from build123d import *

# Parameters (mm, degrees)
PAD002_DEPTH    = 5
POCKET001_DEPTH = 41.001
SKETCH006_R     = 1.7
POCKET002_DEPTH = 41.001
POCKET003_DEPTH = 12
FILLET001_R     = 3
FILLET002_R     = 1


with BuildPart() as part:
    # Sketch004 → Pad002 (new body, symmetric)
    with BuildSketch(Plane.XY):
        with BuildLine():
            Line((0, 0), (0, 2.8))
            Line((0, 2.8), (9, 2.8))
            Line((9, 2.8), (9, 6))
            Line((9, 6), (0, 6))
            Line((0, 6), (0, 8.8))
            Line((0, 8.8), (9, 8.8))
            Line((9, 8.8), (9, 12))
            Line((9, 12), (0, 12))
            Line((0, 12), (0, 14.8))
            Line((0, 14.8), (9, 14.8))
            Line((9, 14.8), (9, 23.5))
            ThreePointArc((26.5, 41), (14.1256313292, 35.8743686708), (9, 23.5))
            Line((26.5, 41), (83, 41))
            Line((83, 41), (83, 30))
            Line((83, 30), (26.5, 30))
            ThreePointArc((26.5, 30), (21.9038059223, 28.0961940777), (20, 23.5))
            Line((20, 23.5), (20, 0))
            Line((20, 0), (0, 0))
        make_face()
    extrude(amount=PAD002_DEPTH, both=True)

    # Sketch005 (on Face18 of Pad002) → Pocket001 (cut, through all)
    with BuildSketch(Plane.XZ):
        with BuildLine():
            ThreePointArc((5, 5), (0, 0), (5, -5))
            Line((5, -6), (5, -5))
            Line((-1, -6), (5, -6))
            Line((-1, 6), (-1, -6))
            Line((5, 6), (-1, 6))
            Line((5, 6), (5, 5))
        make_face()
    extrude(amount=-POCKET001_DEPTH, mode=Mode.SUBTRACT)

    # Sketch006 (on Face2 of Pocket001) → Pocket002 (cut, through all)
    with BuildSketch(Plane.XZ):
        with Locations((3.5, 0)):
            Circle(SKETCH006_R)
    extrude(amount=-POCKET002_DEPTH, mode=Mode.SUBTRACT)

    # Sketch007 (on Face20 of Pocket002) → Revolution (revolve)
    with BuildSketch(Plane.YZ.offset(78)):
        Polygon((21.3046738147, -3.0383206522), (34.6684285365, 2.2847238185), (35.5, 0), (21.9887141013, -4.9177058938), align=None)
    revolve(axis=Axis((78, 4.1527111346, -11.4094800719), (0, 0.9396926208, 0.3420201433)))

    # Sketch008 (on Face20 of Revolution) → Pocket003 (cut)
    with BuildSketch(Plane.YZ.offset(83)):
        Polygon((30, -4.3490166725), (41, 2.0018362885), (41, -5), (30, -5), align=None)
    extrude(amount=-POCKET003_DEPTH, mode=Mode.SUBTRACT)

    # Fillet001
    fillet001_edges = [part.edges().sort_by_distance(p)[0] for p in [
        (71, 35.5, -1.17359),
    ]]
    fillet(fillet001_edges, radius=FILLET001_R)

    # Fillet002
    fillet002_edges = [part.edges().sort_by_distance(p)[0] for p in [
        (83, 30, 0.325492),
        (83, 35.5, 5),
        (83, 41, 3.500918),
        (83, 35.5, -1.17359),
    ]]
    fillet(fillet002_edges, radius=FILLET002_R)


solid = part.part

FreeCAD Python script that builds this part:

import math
import FreeCAD as App
import Part
import Sketcher
from FreeCAD import Vector
Q = App.Units.Quantity


def edges_at(feature, points):
    """Names of the edges that pass closest to the given points."""
    edges = feature.Shape.Edges
    near = lambda p: min(range(len(edges)), key=lambda i: edges[i].distToShape(Part.Vertex(*p))[0])
    return sorted({f"Edge{near(p) + 1}" for p in points})

doc = App.newDocument("Part")
body = doc.addObject("PartDesign::Body", "Body")

# Sketch on XY plane
sketch1 = body.newObject("Sketcher::SketchObject", "Sketch")
sketch1.AttachmentSupport = (doc.getObject("XY_Plane"), [""])
sketch1.MapMode = "FlatFace"
sketch1.addGeometry([
    Part.LineSegment(Vector(0, 2.8, 0), Vector(0, 0, 0)),  # 0
    Part.LineSegment(Vector(0, 0, 0), Vector(20, 0, 0)),  # 1
    Part.LineSegment(Vector(20, 0, 0), Vector(20, 23.5, 0)),  # 2
    Part.ArcOfCircle(Part.Circle(Vector(26.5, 23.5, 0), Vector(0, 0, 1), 6.5), math.radians(90), math.radians(180)),  # 3
    Part.LineSegment(Vector(26.5, 30, 0), Vector(83, 30, 0)),  # 4
    Part.LineSegment(Vector(83, 30, 0), Vector(83, 41, 0)),  # 5
    Part.LineSegment(Vector(83, 41, 0), Vector(26.5, 41, 0)),  # 6
    Part.ArcOfCircle(Part.Circle(Vector(26.5, 23.5, 0), Vector(0, 0, 1), 17.5), math.radians(90), math.radians(180)),  # 7
    Part.LineSegment(Vector(9, 23.5, 0), Vector(9, 14.8, 0)),  # 8
    Part.LineSegment(Vector(9, 14.8, 0), Vector(0, 14.8, 0)),  # 9
    Part.LineSegment(Vector(0, 14.8, 0), Vector(0, 12, 0)),  # 10
    Part.LineSegment(Vector(0, 12, 0), Vector(9, 12, 0)),  # 11
    Part.LineSegment(Vector(9, 12, 0), Vector(9, 8.8, 0)),  # 12
    Part.LineSegment(Vector(9, 8.8, 0), Vector(0, 8.8, 0)),  # 13
    Part.LineSegment(Vector(0, 8.8, 0), Vector(0, 6, 0)),  # 14
    Part.LineSegment(Vector(0, 6, 0), Vector(9, 6, 0)),  # 15
    Part.LineSegment(Vector(9, 6, 0), Vector(9, 2.8, 0)),  # 16
    Part.LineSegment(Vector(9, 2.8, 0), Vector(0, 2.8, 0)),  # 17
], False)
sketch1.addConstraint([
    Sketcher.Constraint("Coincident", 0, 2, 1, 1),
    Sketcher.Constraint("Coincident", 1, 2, 2, 1),
    Sketcher.Constraint("Tangent", 2, 2, 3, 2),
    Sketcher.Constraint("Tangent", 3, 1, 4, 1),
    Sketcher.Constraint("Coincident", 4, 2, 5, 1),
    Sketcher.Constraint("Coincident", 5, 2, 6, 1),
    Sketcher.Constraint("Tangent", 6, 2, 7, 1),
    Sketcher.Constraint("Tangent", 7, 2, 8, 1),
    Sketcher.Constraint("Coincident", 8, 2, 9, 1),
    Sketcher.Constraint("Coincident", 9, 2, 10, 1),
    Sketcher.Constraint("Coincident", 10, 2, 11, 1),
    Sketcher.Constraint("Coincident", 11, 2, 12, 1),
    Sketcher.Constraint("Coincident", 12, 2, 13, 1),
    Sketcher.Constraint("Coincident", 13, 2, 14, 1),
    Sketcher.Constraint("Coincident", 14, 2, 15, 1),
    Sketcher.Constraint("Coincident", 15, 2, 16, 1),
    Sketcher.Constraint("Coincident", 16, 2, 17, 1),
    Sketcher.Constraint("Coincident", 17, 2, 0, 1),
    Sketcher.Constraint("Vertical", 0),
    Sketcher.Constraint("Horizontal", 1),
    Sketcher.Constraint("Vertical", 2),
    Sketcher.Constraint("Horizontal", 4),
    Sketcher.Constraint("Vertical", 5),
    Sketcher.Constraint("Horizontal", 6),
    Sketcher.Constraint("Vertical", 8),
    Sketcher.Constraint("Horizontal", 9),
    Sketcher.Constraint("Vertical", 10),
    Sketcher.Constraint("Horizontal", 11),
    Sketcher.Constraint("Vertical", 12),
    Sketcher.Constraint("Horizontal", 13),
    Sketcher.Constraint("Vertical", 14),
    Sketcher.Constraint("Horizontal", 15),
    Sketcher.Constraint("Vertical", 16),
    Sketcher.Constraint("Horizontal", 17),
    Sketcher.Constraint("Coincident", 0, 2, -1, 1),
    Sketcher.Constraint("Coincident", 7, 3, 3, 3),
    Sketcher.Constraint("PointOnObject", 9, 2, -2),
    Sketcher.Constraint("PointOnObject", 13, 2, -2),
    Sketcher.Constraint("Vertical", 8, 2, 11, 2),
    Sketcher.Constraint("Vertical", 12, 2, 15, 2),
    Sketcher.Constraint("Equal", 0, 10),
    Sketcher.Constraint("Equal", 10, 14),
    Sketcher.Constraint("Equal", 12, 16),
    Sketcher.Constraint("Radius", 3, 6.5),
    Sketcher.Constraint("Radius", 7, 17.5),
    Sketcher.Constraint("DistanceX", 1, 1, 1, 2, 20.0),
    Sketcher.Constraint("DistanceX", 4, 1, 4, 2, 56.5),
    Sketcher.Constraint("DistanceY", 0, 2, 0, 1, 2.8),
    Sketcher.Constraint("DistanceY", 2, 1, 2, 2, 23.5),
    Sketcher.Constraint("DistanceY", 8, 2, 8, 1, 8.7),
])
pad1 = body.newObject("PartDesign::Pad", "Pad")
pad1.Profile = sketch1
pad1.Length = 10
pad1.Midplane = True

# Sketch on XZ plane
sketch2 = body.newObject("Sketcher::SketchObject", "Sketch001")
sketch2.AttachmentSupport = (doc.getObject("XZ_Plane"), [""])
sketch2.MapMode = "FlatFace"
sketch2.addGeometry([
    Part.ArcOfCircle(Part.Circle(Vector(5, 0, 0), Vector(0, 0, 1), 5), math.radians(90), math.radians(270)),  # 0
    Part.LineSegment(Vector(5, 5, 0), Vector(5, 6, 0)),  # 1
    Part.LineSegment(Vector(5, 6, 0), Vector(-1, 6, 0)),  # 2
    Part.LineSegment(Vector(-1, 6, 0), Vector(-1, -6, 0)),  # 3
    Part.LineSegment(Vector(-1, -6, 0), Vector(5, -6, 0)),  # 4
    Part.LineSegment(Vector(5, -6, 0), Vector(5, -5, 0)),  # 5
], False)
sketch2.addConstraint([
    Sketcher.Constraint("Coincident", 0, 1, 1, 1),
    Sketcher.Constraint("Coincident", 1, 2, 2, 1),
    Sketcher.Constraint("Coincident", 2, 2, 3, 1),
    Sketcher.Constraint("Coincident", 3, 2, 4, 1),
    Sketcher.Constraint("Coincident", 4, 2, 5, 1),
    Sketcher.Constraint("Coincident", 5, 2, 0, 2),
    Sketcher.Constraint("Vertical", 1),
    Sketcher.Constraint("Horizontal", 2),
    Sketcher.Constraint("Vertical", 3),
    Sketcher.Constraint("Horizontal", 4),
    Sketcher.Constraint("Vertical", 5),
    Sketcher.Constraint("Symmetric", 1, 2, 4, 2, -1),
    Sketcher.Constraint("PointOnObject", 0, 3, -1),
    Sketcher.Constraint("Radius", 0, 5.0),
    Sketcher.Constraint("DistanceX", 2, 2, 2, 1, 6.0),
    Sketcher.Constraint("DistanceY", 1, 1, 1, 2, 1.0),
    Sketcher.Constraint("DistanceX", -1, 1, 0, 3, 5.0),
    Sketcher.Constraint("DistanceX", -1, 1, 0, 1, 5.0),
])
pocket1 = body.newObject("PartDesign::Pocket", "Pocket")
pocket1.Profile = sketch2
pocket1.Type = "ThroughAll"

# Sketch on XZ plane
sketch3 = body.newObject("Sketcher::SketchObject", "Sketch002")
sketch3.AttachmentSupport = (doc.getObject("XZ_Plane"), [""])
sketch3.MapMode = "FlatFace"
sketch3.addGeometry(Part.Circle(Vector(3.5, 0, 0), Vector(0, 0, 1), 1.7), False)
sketch3.addConstraint([
    Sketcher.Constraint("PointOnObject", 0, 3, -1),
    Sketcher.Constraint("Diameter", 0, 3.4),
    Sketcher.Constraint("DistanceX", -1, 1, 0, 3, 3.5),
])
pocket2 = body.newObject("PartDesign::Pocket", "Pocket001")
pocket2.Profile = sketch3
pocket2.Type = "ThroughAll"

# Sketch on YZ plane
sketch4 = body.newObject("Sketcher::SketchObject", "Sketch003")
sketch4.AttachmentSupport = (doc.getObject("YZ_Plane"), [""])
sketch4.MapMode = "FlatFace"
sketch4.AttachmentOffset = App.Placement(Vector(0, 0, 78), App.Rotation())
sketch4.addGeometry([
    Part.LineSegment(Vector(34.668429, 2.284724, 0), Vector(21.304674, -3.038321, 0)),
    Part.LineSegment(Vector(21.304674, -3.038321, 0), Vector(21.988714, -4.917706, 0)),
    Part.LineSegment(Vector(21.988714, -4.917706, 0), Vector(35.5, 0, 0)),
    Part.LineSegment(Vector(35.5, 0, 0), Vector(34.668429, 2.284724, 0)),
], False)
sketch4.addGeometry(Part.LineSegment(Vector(21.988714, -4.917706, 0), Vector(35.5, 0, 0)), True)  # axis
sketch4.addConstraint([
    Sketcher.Constraint("Coincident", 0, 2, 1, 1),
    Sketcher.Constraint("Coincident", 1, 2, 2, 1),
    Sketcher.Constraint("Coincident", 2, 2, 3, 1),
    Sketcher.Constraint("Coincident", 3, 2, 0, 1),
    Sketcher.Constraint("Coincident", 4, 1, 1, 2),
    Sketcher.Constraint("Coincident", 4, 2, 2, 2),
    Sketcher.Constraint("PointOnObject", 2, 2, -1),
    Sketcher.Constraint("Perpendicular", 1, 2),
    Sketcher.Constraint("Perpendicular", 2, 3),
    Sketcher.Constraint("Angle", 1, Q("-70 deg")),
    Sketcher.Constraint("Distance", 1, 2.0),
    Sketcher.Constraint("DistanceX", -1, 1, 2, 2, 35.5),
    Sketcher.Constraint("Distance", 0, 14.384879),
    Sketcher.Constraint("Distance", 2, 14.37841),
])
revolution = body.newObject("PartDesign::Revolution", "Revolution")
revolution.Profile = sketch4
revolution.ReferenceAxis = (sketch4, ["Axis0"])
revolution.Angle = 360

# Sketch on YZ plane
sketch5 = body.newObject("Sketcher::SketchObject", "Sketch004")
sketch5.AttachmentSupport = (doc.getObject("YZ_Plane"), [""])
sketch5.MapMode = "FlatFace"
sketch5.AttachmentOffset = App.Placement(Vector(0, 0, 83), App.Rotation())
sketch5.addGeometry([
    Part.LineSegment(Vector(41, 2.001836, 0), Vector(30, -4.349017, 0)),
    Part.LineSegment(Vector(30, -4.349017, 0), Vector(30, -5, 0)),
    Part.LineSegment(Vector(30, -5, 0), Vector(41, -5, 0)),
    Part.LineSegment(Vector(41, -5, 0), Vector(41, 2.001836, 0)),
], False)
sketch5.addConstraint([
    Sketcher.Constraint("Coincident", 0, 2, 1, 1),
    Sketcher.Constraint("Coincident", 1, 2, 2, 1),
    Sketcher.Constraint("Coincident", 2, 2, 3, 1),
    Sketcher.Constraint("Coincident", 3, 2, 0, 1),
    Sketcher.Constraint("Vertical", 1),
    Sketcher.Constraint("Horizontal", 2),
    Sketcher.Constraint("Vertical", 3),
    Sketcher.Constraint("DistanceX", 2, 1, 2, 2, 11.0),
    Sketcher.Constraint("Angle", 0, Q("-150 deg")),
    Sketcher.Constraint("DistanceX", -1, 1, 0, 2, 30.0),
    Sketcher.Constraint("DistanceY", 1, 2, -1, 1, 5.0),
    Sketcher.Constraint("DistanceY", 1, 2, 1, 1, 0.650983),
])
pocket3 = body.newObject("PartDesign::Pocket", "Pocket002")
pocket3.Profile = sketch5
pocket3.Length = 12
doc.recompute()

fillet = body.newObject("PartDesign::Fillet", "Fillet")
fillet.Base = (pocket3, edges_at(pocket3, [(71, 35.5, -1.174)]))
fillet.Radius = 3
doc.recompute()

fillet2 = body.newObject("PartDesign::Fillet", "Fillet001")
fillet2.Base = (fillet, edges_at(fillet, [
    (83, 30, 0.325),
    (83, 35.5, 5),
    (83, 41, 3.501),
    (83, 35.5, -1.174),
]))
fillet2.Radius = 1

doc.recompute()
